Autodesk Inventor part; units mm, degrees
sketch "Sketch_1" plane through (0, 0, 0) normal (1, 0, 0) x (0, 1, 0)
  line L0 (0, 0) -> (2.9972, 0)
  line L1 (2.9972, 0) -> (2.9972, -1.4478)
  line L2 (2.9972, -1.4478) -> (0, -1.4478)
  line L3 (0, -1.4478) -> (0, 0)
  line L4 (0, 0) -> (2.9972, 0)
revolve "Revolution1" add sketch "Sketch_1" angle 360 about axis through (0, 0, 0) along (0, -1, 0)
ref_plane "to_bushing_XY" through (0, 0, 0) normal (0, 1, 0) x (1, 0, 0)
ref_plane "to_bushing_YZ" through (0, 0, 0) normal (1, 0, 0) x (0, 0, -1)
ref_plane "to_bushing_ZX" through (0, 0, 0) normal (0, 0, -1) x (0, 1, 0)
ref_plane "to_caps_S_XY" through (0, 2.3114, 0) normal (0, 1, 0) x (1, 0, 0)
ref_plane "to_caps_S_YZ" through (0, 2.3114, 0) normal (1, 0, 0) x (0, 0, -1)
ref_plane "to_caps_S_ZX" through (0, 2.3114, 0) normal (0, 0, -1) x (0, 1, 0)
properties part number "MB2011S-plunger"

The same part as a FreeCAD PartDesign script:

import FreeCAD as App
import Part
import Sketcher

V = App.Vector
Q = App.Units.Quantity

doc = App.newDocument("Part")
body = doc.addObject("PartDesign::Body", "Body")

sketch1 = body.newObject("Sketcher::SketchObject", "Sketch")
sketch1.AttachmentSupport = (doc.getObject("YZ_Plane"), [""])
sketch1.MapMode = "FlatFace"
sketch1.addGeometry(Part.LineSegment(V(3, 0, 0), V(0, 0, 0)), False)
sketch1.addGeometry(Part.LineSegment(V(0, 0, 0), V(0, -1.4, 0)), False)
sketch1.addGeometry(Part.LineSegment(V(0, -1.4, 0), V(3, -1.4, 0)), False)
sketch1.addGeometry(Part.LineSegment(V(3, -1.4, 0), V(3, 0, 0)), False)
sketch1.addConstraint(Sketcher.Constraint("Coincident", 0, 2, 1, 1))
sketch1.addConstraint(Sketcher.Constraint("Coincident", 1, 2, 2, 1))
sketch1.addConstraint(Sketcher.Constraint("Coincident", 2, 2, 3, 1))
sketch1.addConstraint(Sketcher.Constraint("Coincident", 3, 2, 0, 1))
sketch1.addConstraint(Sketcher.Constraint("Horizontal", 0))
sketch1.addConstraint(Sketcher.Constraint("Vertical", 1))
sketch1.addConstraint(Sketcher.Constraint("Horizontal", 2))
sketch1.addConstraint(Sketcher.Constraint("Vertical", 3))
sketch1.addConstraint(Sketcher.Constraint("Coincident", 0, 2, -1, 1))
sketch1.addConstraint(Sketcher.Constraint("DistanceX", 0, 2, 0, 1, Q("0.118 in")))
sketch1.addConstraint(Sketcher.Constraint("DistanceY", 1, 2, 1, 1, Q("0.057 in")))
revolution = body.newObject("PartDesign::Revolution", "Revolution")
revolution.Profile = sketch1
revolution.ReferenceAxis = (sketch1, ["H_Axis"])
revolution.Angle = 360

doc.recompute()
